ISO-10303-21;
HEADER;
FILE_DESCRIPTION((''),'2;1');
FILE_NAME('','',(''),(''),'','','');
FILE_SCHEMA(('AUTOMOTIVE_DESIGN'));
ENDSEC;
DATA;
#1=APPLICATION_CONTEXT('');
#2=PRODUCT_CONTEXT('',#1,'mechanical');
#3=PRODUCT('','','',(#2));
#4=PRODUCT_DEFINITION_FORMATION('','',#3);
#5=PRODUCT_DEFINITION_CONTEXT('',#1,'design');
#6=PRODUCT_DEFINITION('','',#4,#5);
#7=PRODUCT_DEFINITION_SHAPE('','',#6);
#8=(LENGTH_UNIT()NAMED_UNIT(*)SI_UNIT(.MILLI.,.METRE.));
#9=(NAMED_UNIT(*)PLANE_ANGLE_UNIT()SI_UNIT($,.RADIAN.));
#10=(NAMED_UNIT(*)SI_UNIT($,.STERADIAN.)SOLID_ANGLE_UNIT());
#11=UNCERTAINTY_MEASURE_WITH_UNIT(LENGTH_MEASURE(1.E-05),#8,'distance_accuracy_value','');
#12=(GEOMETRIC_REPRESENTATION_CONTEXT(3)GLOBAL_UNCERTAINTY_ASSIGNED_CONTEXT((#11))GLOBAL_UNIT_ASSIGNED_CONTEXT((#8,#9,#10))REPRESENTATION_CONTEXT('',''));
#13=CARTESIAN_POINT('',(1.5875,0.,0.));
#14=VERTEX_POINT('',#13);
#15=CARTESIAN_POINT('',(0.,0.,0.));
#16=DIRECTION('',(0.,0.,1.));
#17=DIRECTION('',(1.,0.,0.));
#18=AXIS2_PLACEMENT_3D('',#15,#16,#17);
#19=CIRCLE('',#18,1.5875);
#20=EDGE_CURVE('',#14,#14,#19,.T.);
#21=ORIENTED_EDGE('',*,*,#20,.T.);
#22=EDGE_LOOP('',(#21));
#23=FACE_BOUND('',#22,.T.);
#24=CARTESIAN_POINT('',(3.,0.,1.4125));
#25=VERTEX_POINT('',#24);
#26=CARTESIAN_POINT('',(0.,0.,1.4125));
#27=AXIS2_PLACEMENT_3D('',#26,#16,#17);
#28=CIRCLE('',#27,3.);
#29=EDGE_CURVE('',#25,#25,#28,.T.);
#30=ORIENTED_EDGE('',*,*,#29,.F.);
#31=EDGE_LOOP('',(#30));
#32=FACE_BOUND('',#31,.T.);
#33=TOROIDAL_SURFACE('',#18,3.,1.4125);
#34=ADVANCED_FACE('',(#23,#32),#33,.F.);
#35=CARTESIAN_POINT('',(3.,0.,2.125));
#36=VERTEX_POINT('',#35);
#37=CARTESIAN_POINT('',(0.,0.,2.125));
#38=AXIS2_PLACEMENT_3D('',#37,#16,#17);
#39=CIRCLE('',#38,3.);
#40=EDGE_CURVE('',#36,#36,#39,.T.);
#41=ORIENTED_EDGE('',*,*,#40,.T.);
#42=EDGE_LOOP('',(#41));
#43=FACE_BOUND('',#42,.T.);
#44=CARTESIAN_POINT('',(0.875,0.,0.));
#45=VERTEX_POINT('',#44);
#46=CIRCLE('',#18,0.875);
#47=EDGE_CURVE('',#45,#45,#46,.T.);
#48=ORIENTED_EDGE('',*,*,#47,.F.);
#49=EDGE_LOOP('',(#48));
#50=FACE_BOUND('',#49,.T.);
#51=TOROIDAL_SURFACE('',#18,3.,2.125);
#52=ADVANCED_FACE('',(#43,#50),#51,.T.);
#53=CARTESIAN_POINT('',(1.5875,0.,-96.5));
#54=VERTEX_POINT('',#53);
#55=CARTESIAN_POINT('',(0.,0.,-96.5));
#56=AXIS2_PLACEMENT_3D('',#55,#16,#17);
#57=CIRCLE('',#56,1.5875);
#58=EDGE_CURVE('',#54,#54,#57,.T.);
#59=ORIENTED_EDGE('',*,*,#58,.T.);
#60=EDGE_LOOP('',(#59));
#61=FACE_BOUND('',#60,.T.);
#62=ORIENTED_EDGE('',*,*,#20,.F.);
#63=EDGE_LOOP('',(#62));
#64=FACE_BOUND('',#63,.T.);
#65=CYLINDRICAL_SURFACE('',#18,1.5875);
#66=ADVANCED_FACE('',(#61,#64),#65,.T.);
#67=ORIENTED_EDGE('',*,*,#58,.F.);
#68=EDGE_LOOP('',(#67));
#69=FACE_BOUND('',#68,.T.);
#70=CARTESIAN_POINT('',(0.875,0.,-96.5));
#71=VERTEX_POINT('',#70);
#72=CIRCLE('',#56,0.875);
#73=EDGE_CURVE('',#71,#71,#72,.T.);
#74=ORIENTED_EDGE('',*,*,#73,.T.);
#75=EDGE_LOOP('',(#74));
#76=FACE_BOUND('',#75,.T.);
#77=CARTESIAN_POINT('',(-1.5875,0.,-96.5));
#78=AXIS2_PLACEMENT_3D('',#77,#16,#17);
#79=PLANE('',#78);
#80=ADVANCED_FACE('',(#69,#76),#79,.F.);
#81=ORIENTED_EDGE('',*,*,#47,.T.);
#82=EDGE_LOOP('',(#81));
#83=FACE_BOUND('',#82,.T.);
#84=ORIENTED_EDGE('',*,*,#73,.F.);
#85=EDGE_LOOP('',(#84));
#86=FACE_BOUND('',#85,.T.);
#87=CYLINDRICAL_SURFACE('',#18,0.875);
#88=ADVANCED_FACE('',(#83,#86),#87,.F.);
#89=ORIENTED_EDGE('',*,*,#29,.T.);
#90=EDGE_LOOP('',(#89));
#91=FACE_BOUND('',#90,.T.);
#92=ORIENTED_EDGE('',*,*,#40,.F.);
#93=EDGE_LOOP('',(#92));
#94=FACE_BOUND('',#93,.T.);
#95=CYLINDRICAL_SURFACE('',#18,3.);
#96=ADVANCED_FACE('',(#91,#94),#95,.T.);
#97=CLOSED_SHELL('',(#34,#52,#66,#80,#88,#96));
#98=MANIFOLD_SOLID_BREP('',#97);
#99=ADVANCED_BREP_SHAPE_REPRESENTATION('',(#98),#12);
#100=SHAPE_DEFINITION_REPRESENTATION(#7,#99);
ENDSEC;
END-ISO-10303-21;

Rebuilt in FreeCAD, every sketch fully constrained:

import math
import FreeCAD as App
import Part
import Sketcher
from FreeCAD import Vector

doc = App.newDocument("Part")
body = doc.addObject("PartDesign::Body", "Body")

# Sketch on XZ plane
sketch1 = doc.addObject("Sketcher::SketchObject", "Sketch")
body.addObject(sketch1)
sketch1.AttachmentSupport = (doc.XZ_Plane, [""])
sketch1.MapMode = "FlatFace"
sketch1.addGeometry(Part.LineSegment(Vector(-3, 1.4, 0), Vector(-3, 2.1, 0)), False)
sketch1.addGeometry(Part.ArcOfCircle(Part.Circle(Vector(-3, 0, 0), Vector(0, 0, 1), 2.1), math.radians(0), math.radians(90)), False)
sketch1.addGeometry(Part.LineSegment(Vector(-0.9, 0, 0), Vector(-0.9, -96.5, 0)), False)
sketch1.addGeometry(Part.LineSegment(Vector(-0.9, -96.5, 0), Vector(-1.6, -96.5, 0)), False)
sketch1.addGeometry(Part.LineSegment(Vector(-1.6, -96.5, 0), Vector(-1.6, 0, 0)), False)
sketch1.addGeometry(Part.ArcOfCircle(Part.Circle(Vector(-3, 0, 0), Vector(0, 0, 1), 1.4), math.radians(0), math.radians(90)), False)
sketch1.addConstraint(Sketcher.Constraint("Coincident", 0, 2, 1, 2))
sketch1.addConstraint(Sketcher.Constraint("Tangent", 1, 1, 2, 1))
sketch1.addConstraint(Sketcher.Constraint("Coincident", 2, 2, 3, 1))
sketch1.addConstraint(Sketcher.Constraint("Coincident", 3, 2, 4, 1))
sketch1.addConstraint(Sketcher.Constraint("Tangent", 4, 2, 5, 1))
sketch1.addConstraint(Sketcher.Constraint("Coincident", 5, 2, 0, 1))
sketch1.addConstraint(Sketcher.Constraint("Vertical", 0))
sketch1.addConstraint(Sketcher.Constraint("Vertical", 2))
sketch1.addConstraint(Sketcher.Constraint("Horizontal", 3))
sketch1.addConstraint(Sketcher.Constraint("Vertical", 4))
sketch1.addConstraint(Sketcher.Constraint("Coincident", 5, 3, 1, 3))
sketch1.addConstraint(Sketcher.Constraint("PointOnObject", 1, 3, -1))
sketch1.addConstraint(Sketcher.Constraint("Vertical", 5, 3, 0, 2))
sketch1.addConstraint(Sketcher.Constraint("DistanceY", 2, 2, 2, 1, 96.5))
sketch1.addConstraint(Sketcher.Constraint("DistanceX", 1, 3, -1, 1, 3.0))
sketch1.addConstraint(Sketcher.Constraint("Radius", 1, 2.125))
sketch1.addConstraint(Sketcher.Constraint("Radius", 5, 1.4125))
revolution = doc.addObject("PartDesign::Revolution", "Revolution")
body.addObject(revolution)
revolution.Profile = sketch1
revolution.ReferenceAxis = (sketch1, ["V_Axis"])
revolution.Angle = 360

doc.recompute()
